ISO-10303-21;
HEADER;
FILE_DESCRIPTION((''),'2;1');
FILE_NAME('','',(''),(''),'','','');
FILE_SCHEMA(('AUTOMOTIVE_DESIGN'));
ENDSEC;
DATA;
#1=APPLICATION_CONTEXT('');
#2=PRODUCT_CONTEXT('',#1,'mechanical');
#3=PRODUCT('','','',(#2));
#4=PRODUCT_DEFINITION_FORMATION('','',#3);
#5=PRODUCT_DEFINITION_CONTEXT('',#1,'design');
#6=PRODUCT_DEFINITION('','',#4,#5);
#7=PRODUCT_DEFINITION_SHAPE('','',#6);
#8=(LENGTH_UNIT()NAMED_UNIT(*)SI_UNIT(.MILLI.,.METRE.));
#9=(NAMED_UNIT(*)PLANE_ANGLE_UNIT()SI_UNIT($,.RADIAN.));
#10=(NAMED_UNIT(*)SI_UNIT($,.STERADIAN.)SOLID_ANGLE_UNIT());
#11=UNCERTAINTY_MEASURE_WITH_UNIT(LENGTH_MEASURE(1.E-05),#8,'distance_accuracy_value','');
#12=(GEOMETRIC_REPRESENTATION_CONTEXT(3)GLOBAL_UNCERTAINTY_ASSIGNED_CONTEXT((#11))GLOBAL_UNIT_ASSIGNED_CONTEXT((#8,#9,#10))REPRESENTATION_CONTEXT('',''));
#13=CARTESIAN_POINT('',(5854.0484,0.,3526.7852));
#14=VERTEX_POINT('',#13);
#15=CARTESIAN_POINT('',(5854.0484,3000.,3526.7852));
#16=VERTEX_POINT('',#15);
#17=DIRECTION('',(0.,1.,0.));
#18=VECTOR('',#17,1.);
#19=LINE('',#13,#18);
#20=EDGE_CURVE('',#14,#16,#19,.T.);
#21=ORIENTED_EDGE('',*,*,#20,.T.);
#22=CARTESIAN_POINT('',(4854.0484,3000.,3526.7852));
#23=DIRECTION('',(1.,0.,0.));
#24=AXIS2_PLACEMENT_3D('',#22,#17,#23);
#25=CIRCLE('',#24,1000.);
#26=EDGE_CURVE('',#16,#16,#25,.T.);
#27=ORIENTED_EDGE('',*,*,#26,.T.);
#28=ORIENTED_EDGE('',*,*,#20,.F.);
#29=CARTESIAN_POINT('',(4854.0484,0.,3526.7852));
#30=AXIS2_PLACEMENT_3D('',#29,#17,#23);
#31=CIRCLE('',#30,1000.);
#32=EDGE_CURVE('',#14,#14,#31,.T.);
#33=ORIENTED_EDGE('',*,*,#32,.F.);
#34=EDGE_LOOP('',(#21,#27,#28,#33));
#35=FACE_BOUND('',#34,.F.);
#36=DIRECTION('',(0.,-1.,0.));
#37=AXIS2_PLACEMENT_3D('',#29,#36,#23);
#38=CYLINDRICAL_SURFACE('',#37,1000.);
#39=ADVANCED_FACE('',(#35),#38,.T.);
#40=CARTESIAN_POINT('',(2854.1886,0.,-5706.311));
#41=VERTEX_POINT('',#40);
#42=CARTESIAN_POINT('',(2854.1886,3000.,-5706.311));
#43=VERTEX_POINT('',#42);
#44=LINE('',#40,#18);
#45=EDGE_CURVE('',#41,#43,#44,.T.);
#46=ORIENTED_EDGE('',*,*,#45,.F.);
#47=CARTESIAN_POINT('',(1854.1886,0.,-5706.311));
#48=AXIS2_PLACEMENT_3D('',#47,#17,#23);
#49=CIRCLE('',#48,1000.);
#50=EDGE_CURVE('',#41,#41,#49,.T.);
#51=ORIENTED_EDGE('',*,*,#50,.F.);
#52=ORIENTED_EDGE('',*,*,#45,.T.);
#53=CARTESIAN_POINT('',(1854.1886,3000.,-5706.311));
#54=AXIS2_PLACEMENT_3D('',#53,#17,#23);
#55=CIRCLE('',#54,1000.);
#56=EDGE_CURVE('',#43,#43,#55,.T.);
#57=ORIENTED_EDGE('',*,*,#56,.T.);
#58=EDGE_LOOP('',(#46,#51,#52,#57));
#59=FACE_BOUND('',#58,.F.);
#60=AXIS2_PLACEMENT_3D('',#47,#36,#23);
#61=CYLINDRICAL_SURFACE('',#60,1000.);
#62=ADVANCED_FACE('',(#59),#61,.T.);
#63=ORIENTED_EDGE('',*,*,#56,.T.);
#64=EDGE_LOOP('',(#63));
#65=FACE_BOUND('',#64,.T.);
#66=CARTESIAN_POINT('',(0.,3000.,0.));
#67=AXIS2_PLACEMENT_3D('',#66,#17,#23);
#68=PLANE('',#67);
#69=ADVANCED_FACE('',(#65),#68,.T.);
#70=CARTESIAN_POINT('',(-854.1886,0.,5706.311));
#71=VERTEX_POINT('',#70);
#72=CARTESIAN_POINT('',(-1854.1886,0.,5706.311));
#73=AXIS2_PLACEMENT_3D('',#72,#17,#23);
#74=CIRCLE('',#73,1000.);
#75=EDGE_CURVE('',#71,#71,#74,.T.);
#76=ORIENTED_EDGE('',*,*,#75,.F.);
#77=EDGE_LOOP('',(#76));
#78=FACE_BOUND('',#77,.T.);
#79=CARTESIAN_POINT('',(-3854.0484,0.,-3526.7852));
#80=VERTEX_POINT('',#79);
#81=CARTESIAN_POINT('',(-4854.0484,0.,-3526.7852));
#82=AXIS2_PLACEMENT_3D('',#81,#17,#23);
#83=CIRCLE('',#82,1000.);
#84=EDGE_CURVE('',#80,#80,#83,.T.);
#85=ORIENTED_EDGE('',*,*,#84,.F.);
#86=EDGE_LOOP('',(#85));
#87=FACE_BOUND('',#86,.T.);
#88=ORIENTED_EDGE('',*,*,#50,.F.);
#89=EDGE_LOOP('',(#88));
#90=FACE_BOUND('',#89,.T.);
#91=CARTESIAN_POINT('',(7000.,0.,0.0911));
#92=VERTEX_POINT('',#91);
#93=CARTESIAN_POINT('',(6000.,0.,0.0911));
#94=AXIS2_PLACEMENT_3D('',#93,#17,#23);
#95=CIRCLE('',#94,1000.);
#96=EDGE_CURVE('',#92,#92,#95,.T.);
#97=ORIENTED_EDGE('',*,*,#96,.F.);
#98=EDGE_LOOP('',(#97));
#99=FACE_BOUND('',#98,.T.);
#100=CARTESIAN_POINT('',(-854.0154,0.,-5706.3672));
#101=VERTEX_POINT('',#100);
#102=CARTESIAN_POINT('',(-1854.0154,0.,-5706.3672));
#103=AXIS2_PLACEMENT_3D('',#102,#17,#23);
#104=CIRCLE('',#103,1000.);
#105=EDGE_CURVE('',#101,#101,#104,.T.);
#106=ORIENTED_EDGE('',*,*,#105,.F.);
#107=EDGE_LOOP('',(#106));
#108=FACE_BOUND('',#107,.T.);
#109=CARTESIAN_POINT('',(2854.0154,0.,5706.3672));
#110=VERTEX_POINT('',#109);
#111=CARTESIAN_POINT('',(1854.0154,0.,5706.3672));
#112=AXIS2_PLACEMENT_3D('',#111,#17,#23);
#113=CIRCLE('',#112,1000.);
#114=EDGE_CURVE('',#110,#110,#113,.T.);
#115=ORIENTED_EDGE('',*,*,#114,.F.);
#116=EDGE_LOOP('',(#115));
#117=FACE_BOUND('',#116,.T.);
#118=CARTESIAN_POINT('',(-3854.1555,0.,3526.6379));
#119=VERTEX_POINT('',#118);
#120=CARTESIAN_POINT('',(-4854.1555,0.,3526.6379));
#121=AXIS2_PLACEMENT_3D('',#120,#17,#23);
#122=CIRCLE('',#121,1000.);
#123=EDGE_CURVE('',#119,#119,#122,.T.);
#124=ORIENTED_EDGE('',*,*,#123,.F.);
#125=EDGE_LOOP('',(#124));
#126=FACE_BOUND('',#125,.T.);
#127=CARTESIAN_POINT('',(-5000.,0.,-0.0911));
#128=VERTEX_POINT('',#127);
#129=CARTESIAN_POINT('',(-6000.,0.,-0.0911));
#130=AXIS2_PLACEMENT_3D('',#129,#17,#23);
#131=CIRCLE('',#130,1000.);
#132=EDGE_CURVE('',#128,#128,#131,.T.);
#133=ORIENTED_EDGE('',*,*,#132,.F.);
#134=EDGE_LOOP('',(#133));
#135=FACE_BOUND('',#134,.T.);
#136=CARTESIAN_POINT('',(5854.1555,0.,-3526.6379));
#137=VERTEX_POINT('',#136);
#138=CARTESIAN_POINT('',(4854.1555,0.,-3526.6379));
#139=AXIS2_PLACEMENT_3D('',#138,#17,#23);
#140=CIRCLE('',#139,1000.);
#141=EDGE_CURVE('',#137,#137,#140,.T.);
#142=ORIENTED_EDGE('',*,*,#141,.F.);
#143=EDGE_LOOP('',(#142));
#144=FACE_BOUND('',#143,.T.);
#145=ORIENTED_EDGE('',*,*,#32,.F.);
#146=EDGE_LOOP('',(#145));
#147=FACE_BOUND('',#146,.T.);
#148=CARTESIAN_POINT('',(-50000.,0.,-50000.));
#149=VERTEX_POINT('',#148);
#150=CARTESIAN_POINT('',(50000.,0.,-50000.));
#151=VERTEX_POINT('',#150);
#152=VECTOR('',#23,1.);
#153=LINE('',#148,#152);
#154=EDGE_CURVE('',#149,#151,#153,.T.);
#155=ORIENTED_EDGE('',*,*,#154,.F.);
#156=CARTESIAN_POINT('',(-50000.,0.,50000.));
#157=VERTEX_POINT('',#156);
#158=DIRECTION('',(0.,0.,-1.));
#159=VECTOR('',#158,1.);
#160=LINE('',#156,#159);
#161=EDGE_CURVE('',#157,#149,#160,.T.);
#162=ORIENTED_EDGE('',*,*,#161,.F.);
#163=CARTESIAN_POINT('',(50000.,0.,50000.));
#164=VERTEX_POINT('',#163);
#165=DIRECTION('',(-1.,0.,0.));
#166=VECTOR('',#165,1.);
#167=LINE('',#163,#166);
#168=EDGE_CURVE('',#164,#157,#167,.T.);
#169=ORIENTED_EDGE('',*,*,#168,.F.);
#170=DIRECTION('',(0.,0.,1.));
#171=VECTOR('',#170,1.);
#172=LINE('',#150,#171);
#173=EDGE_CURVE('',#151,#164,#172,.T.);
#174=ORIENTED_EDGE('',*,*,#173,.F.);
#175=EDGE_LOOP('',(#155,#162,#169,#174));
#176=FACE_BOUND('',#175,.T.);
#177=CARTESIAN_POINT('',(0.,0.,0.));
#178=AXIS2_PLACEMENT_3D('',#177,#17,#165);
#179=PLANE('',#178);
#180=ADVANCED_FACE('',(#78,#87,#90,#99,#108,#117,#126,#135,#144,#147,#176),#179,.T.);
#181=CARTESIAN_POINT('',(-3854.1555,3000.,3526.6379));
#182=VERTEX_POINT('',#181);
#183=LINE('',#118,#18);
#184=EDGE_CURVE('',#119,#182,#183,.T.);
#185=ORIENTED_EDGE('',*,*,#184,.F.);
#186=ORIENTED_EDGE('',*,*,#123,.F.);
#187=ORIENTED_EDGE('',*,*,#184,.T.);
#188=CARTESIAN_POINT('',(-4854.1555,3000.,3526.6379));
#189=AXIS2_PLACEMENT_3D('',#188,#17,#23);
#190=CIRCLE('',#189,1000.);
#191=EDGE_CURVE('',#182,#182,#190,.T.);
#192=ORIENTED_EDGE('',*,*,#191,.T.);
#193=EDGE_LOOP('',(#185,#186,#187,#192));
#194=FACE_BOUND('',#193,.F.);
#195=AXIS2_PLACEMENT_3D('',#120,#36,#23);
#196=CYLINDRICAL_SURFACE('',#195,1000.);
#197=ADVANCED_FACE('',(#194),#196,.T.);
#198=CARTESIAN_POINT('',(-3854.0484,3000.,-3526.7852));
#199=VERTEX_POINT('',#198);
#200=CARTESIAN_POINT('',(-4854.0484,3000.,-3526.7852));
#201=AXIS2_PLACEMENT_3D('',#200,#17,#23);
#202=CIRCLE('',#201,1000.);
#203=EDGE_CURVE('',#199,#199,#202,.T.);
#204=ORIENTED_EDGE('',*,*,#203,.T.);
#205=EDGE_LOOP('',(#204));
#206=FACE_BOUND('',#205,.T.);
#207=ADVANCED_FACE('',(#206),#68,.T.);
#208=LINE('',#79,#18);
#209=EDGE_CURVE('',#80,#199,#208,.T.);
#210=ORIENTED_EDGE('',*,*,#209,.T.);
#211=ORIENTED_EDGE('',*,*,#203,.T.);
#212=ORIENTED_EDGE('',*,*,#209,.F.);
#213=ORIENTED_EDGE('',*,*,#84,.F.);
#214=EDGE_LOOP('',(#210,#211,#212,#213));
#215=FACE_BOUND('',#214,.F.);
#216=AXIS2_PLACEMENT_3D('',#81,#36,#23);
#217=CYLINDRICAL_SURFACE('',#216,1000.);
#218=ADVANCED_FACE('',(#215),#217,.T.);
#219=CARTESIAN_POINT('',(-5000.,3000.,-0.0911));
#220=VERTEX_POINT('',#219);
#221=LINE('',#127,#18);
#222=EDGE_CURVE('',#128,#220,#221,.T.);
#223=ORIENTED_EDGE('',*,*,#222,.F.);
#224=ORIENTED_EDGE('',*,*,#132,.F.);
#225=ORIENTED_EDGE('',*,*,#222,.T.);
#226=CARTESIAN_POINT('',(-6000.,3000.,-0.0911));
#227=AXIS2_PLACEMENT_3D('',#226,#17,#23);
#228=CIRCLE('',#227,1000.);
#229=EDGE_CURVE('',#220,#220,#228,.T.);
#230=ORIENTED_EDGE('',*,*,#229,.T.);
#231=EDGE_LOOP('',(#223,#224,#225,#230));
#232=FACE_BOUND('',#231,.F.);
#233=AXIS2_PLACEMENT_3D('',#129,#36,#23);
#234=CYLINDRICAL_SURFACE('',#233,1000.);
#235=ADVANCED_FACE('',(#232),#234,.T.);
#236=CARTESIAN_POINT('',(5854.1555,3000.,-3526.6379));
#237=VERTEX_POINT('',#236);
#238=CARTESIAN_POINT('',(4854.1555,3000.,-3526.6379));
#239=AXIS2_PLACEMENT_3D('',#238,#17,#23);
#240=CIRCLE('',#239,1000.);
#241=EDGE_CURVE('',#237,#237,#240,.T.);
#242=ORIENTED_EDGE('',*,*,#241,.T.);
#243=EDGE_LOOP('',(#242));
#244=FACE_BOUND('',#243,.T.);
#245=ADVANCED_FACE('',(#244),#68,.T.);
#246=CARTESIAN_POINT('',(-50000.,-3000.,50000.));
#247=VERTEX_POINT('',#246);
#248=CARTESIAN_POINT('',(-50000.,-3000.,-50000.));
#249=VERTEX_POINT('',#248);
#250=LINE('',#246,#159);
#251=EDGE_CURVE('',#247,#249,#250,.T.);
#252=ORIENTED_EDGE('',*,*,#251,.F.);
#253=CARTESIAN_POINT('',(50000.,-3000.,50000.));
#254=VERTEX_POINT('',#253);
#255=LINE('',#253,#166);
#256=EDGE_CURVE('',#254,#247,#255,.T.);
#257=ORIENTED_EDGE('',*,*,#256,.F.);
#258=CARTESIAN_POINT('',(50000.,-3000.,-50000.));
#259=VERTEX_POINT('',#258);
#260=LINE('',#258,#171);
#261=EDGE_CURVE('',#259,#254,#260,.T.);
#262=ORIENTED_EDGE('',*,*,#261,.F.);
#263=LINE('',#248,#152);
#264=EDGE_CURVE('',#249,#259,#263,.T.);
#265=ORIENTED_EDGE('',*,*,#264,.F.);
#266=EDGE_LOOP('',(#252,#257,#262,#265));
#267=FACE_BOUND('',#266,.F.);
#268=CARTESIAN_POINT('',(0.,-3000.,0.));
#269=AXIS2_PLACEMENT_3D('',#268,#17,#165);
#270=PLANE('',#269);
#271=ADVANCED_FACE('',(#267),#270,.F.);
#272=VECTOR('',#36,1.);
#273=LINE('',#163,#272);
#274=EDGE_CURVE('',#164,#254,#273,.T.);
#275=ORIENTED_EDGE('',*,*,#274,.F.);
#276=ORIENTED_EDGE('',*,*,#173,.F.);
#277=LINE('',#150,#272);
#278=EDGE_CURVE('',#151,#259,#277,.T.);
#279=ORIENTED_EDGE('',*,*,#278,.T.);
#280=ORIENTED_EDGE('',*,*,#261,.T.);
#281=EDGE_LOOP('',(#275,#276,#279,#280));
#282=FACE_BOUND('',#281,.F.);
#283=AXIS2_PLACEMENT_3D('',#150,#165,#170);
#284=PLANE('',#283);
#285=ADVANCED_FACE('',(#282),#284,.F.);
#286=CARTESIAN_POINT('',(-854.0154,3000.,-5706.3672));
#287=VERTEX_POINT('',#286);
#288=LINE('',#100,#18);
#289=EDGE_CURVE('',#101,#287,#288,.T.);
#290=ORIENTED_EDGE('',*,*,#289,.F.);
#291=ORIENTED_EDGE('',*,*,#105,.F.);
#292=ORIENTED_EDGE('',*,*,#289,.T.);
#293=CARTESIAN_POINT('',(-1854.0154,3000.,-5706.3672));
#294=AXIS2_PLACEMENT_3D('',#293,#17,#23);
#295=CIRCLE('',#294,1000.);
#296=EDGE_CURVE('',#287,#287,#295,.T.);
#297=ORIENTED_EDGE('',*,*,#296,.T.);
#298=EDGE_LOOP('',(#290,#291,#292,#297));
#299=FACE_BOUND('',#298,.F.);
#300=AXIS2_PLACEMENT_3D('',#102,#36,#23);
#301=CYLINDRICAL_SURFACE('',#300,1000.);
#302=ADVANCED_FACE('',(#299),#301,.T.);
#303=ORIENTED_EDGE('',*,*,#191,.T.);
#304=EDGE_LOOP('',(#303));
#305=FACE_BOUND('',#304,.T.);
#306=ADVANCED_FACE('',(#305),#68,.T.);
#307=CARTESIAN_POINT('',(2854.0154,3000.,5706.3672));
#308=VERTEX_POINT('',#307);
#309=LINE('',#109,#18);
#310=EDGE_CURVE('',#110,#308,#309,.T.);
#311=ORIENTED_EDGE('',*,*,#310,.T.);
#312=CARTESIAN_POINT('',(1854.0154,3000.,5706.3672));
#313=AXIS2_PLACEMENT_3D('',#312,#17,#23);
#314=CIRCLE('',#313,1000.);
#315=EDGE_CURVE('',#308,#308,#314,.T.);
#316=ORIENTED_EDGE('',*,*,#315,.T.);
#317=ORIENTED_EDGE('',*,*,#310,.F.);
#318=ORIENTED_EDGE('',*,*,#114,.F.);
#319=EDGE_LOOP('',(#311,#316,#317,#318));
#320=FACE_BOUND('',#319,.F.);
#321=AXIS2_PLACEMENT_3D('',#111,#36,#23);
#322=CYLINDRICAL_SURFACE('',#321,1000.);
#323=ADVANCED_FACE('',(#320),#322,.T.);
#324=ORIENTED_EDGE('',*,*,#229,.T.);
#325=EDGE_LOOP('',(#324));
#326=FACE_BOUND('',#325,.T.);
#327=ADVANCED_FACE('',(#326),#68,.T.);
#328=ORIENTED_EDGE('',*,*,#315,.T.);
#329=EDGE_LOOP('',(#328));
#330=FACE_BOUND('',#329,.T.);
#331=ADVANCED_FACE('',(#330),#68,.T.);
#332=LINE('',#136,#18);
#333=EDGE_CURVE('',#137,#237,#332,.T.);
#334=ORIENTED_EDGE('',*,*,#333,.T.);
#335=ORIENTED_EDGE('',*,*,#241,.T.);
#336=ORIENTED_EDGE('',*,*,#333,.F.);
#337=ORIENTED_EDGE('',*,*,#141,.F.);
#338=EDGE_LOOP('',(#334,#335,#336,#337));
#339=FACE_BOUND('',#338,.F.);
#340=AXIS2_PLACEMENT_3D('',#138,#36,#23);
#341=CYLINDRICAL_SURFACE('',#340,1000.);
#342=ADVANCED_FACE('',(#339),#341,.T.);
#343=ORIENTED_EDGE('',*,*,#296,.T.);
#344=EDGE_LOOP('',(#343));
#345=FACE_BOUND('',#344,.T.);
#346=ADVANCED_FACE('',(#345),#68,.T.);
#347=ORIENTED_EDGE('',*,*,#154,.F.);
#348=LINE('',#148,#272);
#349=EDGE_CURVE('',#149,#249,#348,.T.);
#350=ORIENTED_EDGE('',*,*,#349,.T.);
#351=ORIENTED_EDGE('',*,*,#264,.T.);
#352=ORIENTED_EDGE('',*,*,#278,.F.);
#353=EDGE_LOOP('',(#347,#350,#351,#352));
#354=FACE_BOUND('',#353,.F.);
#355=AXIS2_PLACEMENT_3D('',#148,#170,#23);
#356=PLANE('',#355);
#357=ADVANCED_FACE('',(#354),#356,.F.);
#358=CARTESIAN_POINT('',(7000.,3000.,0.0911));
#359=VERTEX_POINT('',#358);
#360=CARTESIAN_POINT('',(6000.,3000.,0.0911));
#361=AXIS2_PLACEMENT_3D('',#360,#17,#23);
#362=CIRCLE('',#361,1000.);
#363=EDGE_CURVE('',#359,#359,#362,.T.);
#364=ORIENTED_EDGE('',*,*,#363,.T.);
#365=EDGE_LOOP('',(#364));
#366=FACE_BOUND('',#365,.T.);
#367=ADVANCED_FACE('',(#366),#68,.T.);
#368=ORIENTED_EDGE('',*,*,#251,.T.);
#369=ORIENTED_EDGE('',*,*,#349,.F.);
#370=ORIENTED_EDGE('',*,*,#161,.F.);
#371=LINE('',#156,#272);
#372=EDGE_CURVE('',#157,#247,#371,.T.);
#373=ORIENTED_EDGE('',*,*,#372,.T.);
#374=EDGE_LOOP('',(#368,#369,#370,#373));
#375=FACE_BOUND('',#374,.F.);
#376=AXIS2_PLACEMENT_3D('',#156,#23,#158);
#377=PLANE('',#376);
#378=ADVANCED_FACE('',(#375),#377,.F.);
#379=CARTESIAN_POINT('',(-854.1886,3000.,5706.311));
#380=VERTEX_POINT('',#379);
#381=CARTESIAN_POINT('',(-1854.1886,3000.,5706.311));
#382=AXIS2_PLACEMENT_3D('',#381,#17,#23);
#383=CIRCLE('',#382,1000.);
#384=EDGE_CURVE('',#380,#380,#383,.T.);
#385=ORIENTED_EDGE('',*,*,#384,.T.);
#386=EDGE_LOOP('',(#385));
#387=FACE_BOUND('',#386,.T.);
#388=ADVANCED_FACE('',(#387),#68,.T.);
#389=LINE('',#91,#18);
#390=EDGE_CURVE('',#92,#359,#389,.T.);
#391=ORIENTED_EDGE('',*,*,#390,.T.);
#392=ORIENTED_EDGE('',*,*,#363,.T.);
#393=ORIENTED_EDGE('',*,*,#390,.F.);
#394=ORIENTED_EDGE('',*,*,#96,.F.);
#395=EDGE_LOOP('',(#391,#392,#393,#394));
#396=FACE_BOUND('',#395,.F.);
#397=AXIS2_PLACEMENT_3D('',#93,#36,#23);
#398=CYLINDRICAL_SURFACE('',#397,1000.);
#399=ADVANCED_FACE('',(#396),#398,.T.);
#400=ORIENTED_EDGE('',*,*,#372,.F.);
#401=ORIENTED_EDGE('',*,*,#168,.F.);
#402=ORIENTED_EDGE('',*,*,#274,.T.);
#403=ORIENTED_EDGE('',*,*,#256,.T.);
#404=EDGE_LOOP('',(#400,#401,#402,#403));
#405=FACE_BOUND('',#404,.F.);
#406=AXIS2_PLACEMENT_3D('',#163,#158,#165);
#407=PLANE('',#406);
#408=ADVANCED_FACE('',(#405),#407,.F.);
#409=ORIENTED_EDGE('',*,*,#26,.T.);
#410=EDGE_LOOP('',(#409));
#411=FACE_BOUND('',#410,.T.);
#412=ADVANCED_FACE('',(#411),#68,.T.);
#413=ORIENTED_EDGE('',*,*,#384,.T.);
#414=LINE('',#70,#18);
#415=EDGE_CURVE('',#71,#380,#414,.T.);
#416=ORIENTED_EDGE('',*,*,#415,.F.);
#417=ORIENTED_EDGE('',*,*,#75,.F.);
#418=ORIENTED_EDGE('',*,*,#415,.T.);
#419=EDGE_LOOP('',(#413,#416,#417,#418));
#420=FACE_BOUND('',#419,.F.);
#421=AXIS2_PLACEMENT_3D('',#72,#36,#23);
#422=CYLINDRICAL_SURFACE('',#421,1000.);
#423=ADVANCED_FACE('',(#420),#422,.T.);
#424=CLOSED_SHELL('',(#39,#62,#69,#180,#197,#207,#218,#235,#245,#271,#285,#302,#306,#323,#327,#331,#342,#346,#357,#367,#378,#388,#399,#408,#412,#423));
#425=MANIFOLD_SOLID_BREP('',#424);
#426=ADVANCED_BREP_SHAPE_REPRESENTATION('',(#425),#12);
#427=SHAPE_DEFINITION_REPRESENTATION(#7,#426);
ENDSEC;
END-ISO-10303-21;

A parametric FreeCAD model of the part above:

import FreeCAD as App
import Part
import Sketcher

V = App.Vector
Q = App.Units.Quantity

doc = App.newDocument("Part")
body = doc.addObject("PartDesign::Body", "Body")

# Sketch on XZ plane
sketch1 = body.newObject("Sketcher::SketchObject", "Sketch")
sketch1.AttachmentSupport = (doc.getObject("XZ_Plane"), [""])
sketch1.MapMode = "FlatFace"
sketch1.addGeometry([
    Part.LineSegment(V(-50000, 50000, 0), V(50000, 50000, 0)),
    Part.LineSegment(V(50000, 50000, 0), V(50000, -50000, 0)),
    Part.LineSegment(V(50000, -50000, 0), V(-50000, -50000, 0)),
    Part.LineSegment(V(-50000, -50000, 0), V(-50000, 50000, 0)),
], False)
sketch1.addConstraint([
    Sketcher.Constraint("Coincident", 0, 2, 1, 1),
    Sketcher.Constraint("Coincident", 1, 2, 2, 1),
    Sketcher.Constraint("Coincident", 2, 2, 3, 1),
    Sketcher.Constraint("Coincident", 3, 2, 0, 1),
    Sketcher.Constraint("Horizontal", 0),
    Sketcher.Constraint("Vertical", 1),
    Sketcher.Constraint("Horizontal", 2),
    Sketcher.Constraint("Vertical", 3),
    Sketcher.Constraint("Symmetric", 0, 2, 2, 2, -1, 1),
    Sketcher.Constraint("Equal", 2, 1),
    Sketcher.Constraint("DistanceX", 0, 1, 0, 2, Q("100000 mm")),
])
pad1 = body.newObject("PartDesign::Pad", "Pad")
pad1.Profile = sketch1
pad1.Length = 3000

# Sketch on XZ plane
sketch2 = body.newObject("Sketcher::SketchObject", "Sketch001")
sketch2.AttachmentSupport = (doc.getObject("XZ_Plane"), [""])
sketch2.MapMode = "FlatFace"
sketch2.addGeometry([
    Part.Circle(V(6000, 0.0911, 0), V(0, 0, 1), 1000),  # 0
    Part.Circle(V(4854.1555, -3526.6379, 0), V(0, 0, 1), 1000),  # 1
    Part.Circle(V(1854.1886, -5706.311, 0), V(0, 0, 1), 1000),  # 2
    Part.Circle(V(-1854.0154, -5706.3672, 0), V(0, 0, 1), 1000),  # 3
    Part.Circle(V(-4854.0484, -3526.7852, 0), V(0, 0, 1), 1000),  # 4
    Part.Circle(V(-6000, -0.0911, 0), V(0, 0, 1), 1000),  # 5
    Part.Circle(V(-4854.1555, 3526.6379, 0), V(0, 0, 1), 1000),  # 6
    Part.Circle(V(-1854.1886, 5706.311, 0), V(0, 0, 1), 1000),  # 7
    Part.Circle(V(1854.0154, 5706.3672, 0), V(0, 0, 1), 1000),  # 8
    Part.Circle(V(4854.0484, 3526.7852, 0), V(0, 0, 1), 1000),  # 9
], False)
sketch2.addConstraint([
    Sketcher.Constraint("Equal", 0, 1),
    Sketcher.Constraint("Equal", 1, 2),
    Sketcher.Constraint("Equal", 2, 3),
    Sketcher.Constraint("Equal", 3, 4),
    Sketcher.Constraint("Equal", 4, 5),
    Sketcher.Constraint("Equal", 5, 6),
    Sketcher.Constraint("Equal", 6, 7),
    Sketcher.Constraint("Equal", 7, 8),
    Sketcher.Constraint("Equal", 8, 9),
    Sketcher.Constraint("Symmetric", 0, 3, 5, 3, -1, 1),
    Sketcher.Constraint("Symmetric", 1, 3, 6, 3, -1, 1),
    Sketcher.Constraint("Symmetric", 2, 3, 7, 3, -1, 1),
    Sketcher.Constraint("Symmetric", 3, 3, 8, 3, -1, 1),
    Sketcher.Constraint("Symmetric", 4, 3, 9, 3, -1, 1),
    Sketcher.Constraint("Diameter", 0, Q("2000 mm")),
    Sketcher.Constraint("DistanceX", 5, 3, 0, 3, Q("12000 mm")),
    Sketcher.Constraint("DistanceY", 2, 3, 5, 3, Q("5706.22 mm")),
    Sketcher.Constraint("DistanceX", 6, 3, 3, 3, Q("3000.14 mm")),
    Sketcher.Constraint("DistanceY", -1, 1, 0, 3, Q("0.091 mm")),
    Sketcher.Constraint("DistanceY", 1, 3, -1, 1, Q("3526.638 mm")),
    Sketcher.Constraint("DistanceX", 2, 3, 1, 3, Q("2999.967 mm")),
    Sketcher.Constraint("DistanceX", 3, 3, 2, 3, Q("3708.204 mm")),
    Sketcher.Constraint("DistanceX", 4, 3, 3, 3, Q("3000.033 mm")),
    Sketcher.Constraint("DistanceY", 3, 3, 4, 3, Q("2179.582 mm")),
    Sketcher.Constraint("DistanceY", 4, 3, 5, 3, Q("3526.694 mm")),
])
pad2 = body.newObject("PartDesign::Pad", "Pad001")
pad2.Profile = sketch2
pad2.Length = 3000
pad2.Reversed = True

doc.recompute()
